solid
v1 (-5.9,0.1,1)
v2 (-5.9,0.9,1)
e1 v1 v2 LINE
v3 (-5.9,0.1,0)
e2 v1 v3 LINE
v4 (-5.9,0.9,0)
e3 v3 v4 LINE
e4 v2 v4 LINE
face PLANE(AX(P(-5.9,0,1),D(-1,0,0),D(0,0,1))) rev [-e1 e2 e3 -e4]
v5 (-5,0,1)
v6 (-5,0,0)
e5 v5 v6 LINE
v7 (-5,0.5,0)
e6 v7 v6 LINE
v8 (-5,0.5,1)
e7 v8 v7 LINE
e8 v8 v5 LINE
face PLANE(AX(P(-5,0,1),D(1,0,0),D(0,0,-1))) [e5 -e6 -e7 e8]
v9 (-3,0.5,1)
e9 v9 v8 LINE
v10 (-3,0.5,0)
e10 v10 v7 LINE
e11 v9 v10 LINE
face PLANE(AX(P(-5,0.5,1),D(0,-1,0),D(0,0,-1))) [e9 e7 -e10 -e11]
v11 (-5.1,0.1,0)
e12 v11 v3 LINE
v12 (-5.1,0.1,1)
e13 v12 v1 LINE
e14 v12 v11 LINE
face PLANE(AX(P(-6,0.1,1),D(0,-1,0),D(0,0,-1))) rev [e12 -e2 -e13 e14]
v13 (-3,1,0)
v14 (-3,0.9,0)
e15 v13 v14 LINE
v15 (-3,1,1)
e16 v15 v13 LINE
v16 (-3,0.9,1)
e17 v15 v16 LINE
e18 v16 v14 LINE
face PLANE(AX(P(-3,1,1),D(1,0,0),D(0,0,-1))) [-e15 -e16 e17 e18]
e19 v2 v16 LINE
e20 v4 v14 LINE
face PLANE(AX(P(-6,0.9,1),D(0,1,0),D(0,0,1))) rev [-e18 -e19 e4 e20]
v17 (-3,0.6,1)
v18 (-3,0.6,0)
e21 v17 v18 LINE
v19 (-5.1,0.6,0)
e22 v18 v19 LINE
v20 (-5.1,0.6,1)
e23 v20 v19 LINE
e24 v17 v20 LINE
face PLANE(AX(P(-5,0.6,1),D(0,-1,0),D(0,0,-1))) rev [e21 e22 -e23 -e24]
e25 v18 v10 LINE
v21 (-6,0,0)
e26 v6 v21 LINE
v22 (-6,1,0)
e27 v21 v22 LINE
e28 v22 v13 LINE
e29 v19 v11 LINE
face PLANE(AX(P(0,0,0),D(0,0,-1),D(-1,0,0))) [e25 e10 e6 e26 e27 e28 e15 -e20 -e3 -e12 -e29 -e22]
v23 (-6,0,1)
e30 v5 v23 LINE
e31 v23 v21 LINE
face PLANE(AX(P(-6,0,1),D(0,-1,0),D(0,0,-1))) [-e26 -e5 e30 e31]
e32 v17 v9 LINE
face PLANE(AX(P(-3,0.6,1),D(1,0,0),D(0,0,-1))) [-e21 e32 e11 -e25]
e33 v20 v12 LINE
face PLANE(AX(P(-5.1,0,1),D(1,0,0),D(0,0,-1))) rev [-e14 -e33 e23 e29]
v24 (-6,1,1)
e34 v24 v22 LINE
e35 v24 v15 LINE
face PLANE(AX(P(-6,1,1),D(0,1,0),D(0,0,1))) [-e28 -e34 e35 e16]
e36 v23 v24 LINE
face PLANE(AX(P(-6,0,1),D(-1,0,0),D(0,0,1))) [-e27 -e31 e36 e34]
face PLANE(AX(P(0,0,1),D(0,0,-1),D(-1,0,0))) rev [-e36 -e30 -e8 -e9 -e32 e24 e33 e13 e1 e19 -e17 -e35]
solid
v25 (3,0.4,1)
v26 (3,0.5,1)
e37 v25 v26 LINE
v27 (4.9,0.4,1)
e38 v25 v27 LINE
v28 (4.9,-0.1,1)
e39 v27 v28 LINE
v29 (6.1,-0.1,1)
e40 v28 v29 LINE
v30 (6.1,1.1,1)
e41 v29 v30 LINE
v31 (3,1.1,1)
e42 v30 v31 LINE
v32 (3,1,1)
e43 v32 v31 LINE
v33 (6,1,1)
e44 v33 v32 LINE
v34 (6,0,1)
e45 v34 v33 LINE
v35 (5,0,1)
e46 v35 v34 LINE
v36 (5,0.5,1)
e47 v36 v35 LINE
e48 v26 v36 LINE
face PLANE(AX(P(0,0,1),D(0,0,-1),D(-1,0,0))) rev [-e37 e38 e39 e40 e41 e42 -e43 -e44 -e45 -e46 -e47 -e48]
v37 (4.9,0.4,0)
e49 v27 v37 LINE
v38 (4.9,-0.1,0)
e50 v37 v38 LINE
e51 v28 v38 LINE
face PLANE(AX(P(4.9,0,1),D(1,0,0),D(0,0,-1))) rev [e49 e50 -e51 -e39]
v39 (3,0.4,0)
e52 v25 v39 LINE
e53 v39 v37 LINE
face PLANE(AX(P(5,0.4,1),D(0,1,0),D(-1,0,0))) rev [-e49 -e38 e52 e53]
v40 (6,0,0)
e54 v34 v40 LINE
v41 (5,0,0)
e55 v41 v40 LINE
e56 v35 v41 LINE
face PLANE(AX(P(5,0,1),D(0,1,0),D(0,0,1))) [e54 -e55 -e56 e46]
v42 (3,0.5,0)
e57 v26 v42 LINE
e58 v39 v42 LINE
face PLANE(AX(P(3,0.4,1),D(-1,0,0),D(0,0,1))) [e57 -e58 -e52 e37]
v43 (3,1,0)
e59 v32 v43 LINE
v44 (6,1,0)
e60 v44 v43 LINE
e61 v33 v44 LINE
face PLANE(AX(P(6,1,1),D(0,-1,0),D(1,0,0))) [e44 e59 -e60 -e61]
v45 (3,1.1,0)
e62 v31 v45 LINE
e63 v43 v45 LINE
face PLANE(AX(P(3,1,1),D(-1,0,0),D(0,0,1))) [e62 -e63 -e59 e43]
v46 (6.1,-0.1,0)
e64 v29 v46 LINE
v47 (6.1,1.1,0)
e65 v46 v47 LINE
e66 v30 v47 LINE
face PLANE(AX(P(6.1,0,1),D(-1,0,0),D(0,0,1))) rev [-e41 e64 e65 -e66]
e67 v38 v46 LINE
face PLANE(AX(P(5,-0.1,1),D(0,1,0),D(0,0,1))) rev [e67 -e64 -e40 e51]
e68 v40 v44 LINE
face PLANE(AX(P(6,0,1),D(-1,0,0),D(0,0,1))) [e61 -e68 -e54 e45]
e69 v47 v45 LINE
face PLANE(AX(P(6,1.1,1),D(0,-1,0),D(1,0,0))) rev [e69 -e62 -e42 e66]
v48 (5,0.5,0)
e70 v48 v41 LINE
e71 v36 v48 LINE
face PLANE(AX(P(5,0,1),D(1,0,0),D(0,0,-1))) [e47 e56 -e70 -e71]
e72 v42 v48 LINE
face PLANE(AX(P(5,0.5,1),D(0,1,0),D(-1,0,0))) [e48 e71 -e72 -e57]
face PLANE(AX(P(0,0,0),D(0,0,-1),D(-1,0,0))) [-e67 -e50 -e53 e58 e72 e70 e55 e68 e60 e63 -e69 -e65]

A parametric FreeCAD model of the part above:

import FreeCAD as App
import Part
import Sketcher

V = App.Vector


def add_polygon(sketch, points):
    """Adds a closed chain of lines whose ends are joined by coincident constraints."""
    first, n = sketch.GeometryCount, len(points)
    for a, b in zip(points, points[1:] + points[:1]):
        sketch.addGeometry(Part.LineSegment(App.Vector(*a, 0), App.Vector(*b, 0)), False)
    for i in range(n):
        sketch.addConstraint(Sketcher.Constraint("Coincident", first + i, 2, first + (i + 1) % n, 1))

doc = App.newDocument("Part")
body = doc.addObject("PartDesign::Body", "Body")

sketch1 = body.newObject("Sketcher::SketchObject", "Sketch")
sketch1.AttachmentSupport = (doc.getObject("XY_Plane"), [""])
sketch1.MapMode = "FlatFace"
add_polygon(sketch1, [(-3, 1), (-6, 1), (-6, 0), (-5, 0), (-5, 0.5), (-3, 0.5), (-3, 0.6), (-5.1, 0.6), (-5.1, 0.1), (-5.9, 0.1), (-5.9, 0.9), (-3, 0.9)])
sketch1.addConstraint([
    Sketcher.Constraint("Horizontal", 0),
    Sketcher.Constraint("Vertical", 1),
    Sketcher.Constraint("Horizontal", 2),
    Sketcher.Constraint("Vertical", 3),
    Sketcher.Constraint("Horizontal", 4),
    Sketcher.Constraint("Vertical", 5),
    Sketcher.Constraint("Horizontal", 6),
    Sketcher.Constraint("Vertical", 7),
    Sketcher.Constraint("Horizontal", 8),
    Sketcher.Constraint("Vertical", 9),
    Sketcher.Constraint("Horizontal", 10),
    Sketcher.Constraint("Vertical", 11),
    Sketcher.Constraint("PointOnObject", 1, 2, -1),
    Sketcher.Constraint("Vertical", 5, 2, 10, 2),
    Sketcher.Constraint("Equal", 2, 1),
    Sketcher.Constraint("Equal", 3, 7),
    Sketcher.Constraint("Equal", 8, 9),
    Sketcher.Constraint("Equal", 5, 11),
    Sketcher.Constraint("DistanceX", 0, 2, 0, 1, 3.0),
    Sketcher.Constraint("DistanceX", 2, 1, 2, 2, 1.0),
    Sketcher.Constraint("DistanceX", 6, 2, 6, 1, 2.1),
    Sketcher.Constraint("DistanceX", 8, 2, 8, 1, 0.8),
    Sketcher.Constraint("DistanceY", 3, 1, 3, 2, 0.5),
    Sketcher.Constraint("DistanceX", 0, 2, -1, 1, 6.0),
])
pad1 = body.newObject("PartDesign::Pad", "Pad")
pad1.Profile = sketch1
pad1.Length = 1
body2 = doc.addObject("PartDesign::Body", "Body001")

sketch2 = body2.newObject("Sketcher::SketchObject", "Sketch001")
sketch2.AttachmentSupport = (doc.getObject("XY_Plane001"), [""])
sketch2.MapMode = "FlatFace"
add_polygon(sketch2, [(3, 1), (6, 1), (6, 0), (5, 0), (5, 0.5), (3, 0.5), (3, 0.4), (4.9, 0.4), (4.9, -0.1), (6.1, -0.1), (6.1, 1.1), (3, 1.1)])
sketch2.addConstraint([
    Sketcher.Constraint("Horizontal", 0),
    Sketcher.Constraint("Vertical", 1),
    Sketcher.Constraint("Horizontal", 2),
    Sketcher.Constraint("Vertical", 3),
    Sketcher.Constraint("Horizontal", 4),
    Sketcher.Constraint("Vertical", 5),
    Sketcher.Constraint("Horizontal", 6),
    Sketcher.Constraint("Vertical", 7),
    Sketcher.Constraint("Horizontal", 8),
    Sketcher.Constraint("Vertical", 9),
    Sketcher.Constraint("Horizontal", 10),
    Sketcher.Constraint("Vertical", 11),
    Sketcher.Constraint("PointOnObject", 1, 2, -1),
    Sketcher.Constraint("Vertical", 5, 2, 10, 2),
    Sketcher.Constraint("Equal", 2, 1),
    Sketcher.Constraint("Equal", 3, 7),
    Sketcher.Constraint("Equal", 8, 9),
    Sketcher.Constraint("Equal", 5, 11),
    Sketcher.Constraint("DistanceX", 0, 1, 0, 2, 3.0),
    Sketcher.Constraint("DistanceX", 2, 2, 2, 1, 1.0),
    Sketcher.Constraint("DistanceX", 6, 1, 6, 2, 1.9),
    Sketcher.Constraint("DistanceX", 8, 1, 8, 2, 1.2),
    Sketcher.Constraint("DistanceY", 3, 1, 3, 2, 0.5),
    Sketcher.Constraint("DistanceX", -1, 1, 0, 2, 6.0),
])
pad2 = body2.newObject("PartDesign::Pad", "Pad001")
pad2.Profile = sketch2
pad2.Length = 1

doc.recompute()
